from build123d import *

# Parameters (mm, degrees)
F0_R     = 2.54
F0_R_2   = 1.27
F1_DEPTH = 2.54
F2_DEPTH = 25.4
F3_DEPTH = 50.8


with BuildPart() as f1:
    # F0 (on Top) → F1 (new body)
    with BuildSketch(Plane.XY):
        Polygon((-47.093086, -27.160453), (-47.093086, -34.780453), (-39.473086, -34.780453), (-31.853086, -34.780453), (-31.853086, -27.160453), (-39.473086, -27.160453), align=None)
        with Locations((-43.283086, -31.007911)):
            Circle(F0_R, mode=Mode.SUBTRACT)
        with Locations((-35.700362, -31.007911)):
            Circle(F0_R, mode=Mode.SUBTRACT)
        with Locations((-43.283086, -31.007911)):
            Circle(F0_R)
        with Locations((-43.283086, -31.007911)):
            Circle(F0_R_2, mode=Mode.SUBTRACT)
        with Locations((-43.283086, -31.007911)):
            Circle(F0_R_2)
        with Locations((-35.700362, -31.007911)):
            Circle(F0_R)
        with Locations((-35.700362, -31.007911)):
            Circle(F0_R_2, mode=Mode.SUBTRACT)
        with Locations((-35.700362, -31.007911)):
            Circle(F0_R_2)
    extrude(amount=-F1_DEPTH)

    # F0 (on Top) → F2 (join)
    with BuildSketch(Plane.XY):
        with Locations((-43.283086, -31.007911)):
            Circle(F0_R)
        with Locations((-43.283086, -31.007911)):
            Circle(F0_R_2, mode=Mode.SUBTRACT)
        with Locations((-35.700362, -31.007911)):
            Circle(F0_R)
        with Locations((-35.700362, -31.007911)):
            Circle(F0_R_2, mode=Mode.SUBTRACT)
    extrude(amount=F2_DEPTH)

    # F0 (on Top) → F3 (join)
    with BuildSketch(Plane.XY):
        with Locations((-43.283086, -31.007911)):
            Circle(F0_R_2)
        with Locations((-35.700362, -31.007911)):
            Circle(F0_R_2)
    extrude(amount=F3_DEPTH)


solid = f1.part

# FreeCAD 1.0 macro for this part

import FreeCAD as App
import Part
import Sketcher
Q = App.Units.Quantity


def add_polygon(sketch, points):
    """Adds a closed chain of lines whose ends are joined by coincident constraints."""
    first, n = sketch.GeometryCount, len(points)
    for a, b in zip(points, points[1:] + points[:1]):
        sketch.addGeometry(Part.LineSegment(App.Vector(*a, 0), App.Vector(*b, 0)), False)
    for i in range(n):
        sketch.addConstraint(Sketcher.Constraint("Coincident", first + i, 2, first + (i + 1) % n, 1))

doc = App.newDocument("Part")
body = doc.addObject("PartDesign::Body", "Body")

sketch1 = body.newObject("Sketcher::SketchObject", "Sketch")
sketch1.AttachmentSupport = (doc.getObject("XY_Plane"), [""])
sketch1.MapMode = "FlatFace"
add_polygon(sketch1, [(-47, -27), (-47, -35), (-32, -35), (-32, -27)])
sketch1.addConstraint(Sketcher.Constraint("Vertical", 0))
sketch1.addConstraint(Sketcher.Constraint("Horizontal", 1))
sketch1.addConstraint(Sketcher.Constraint("Vertical", 2))
sketch1.addConstraint(Sketcher.Constraint("Horizontal", 3))
sketch1.addConstraint(Sketcher.Constraint("DistanceX", 1, 1, 1, 2, Q("0.6 in")))
sketch1.addConstraint(Sketcher.Constraint("DistanceY", 0, 2, 0, 1, Q("0.3 in")))
sketch1.addConstraint(Sketcher.Constraint("DistanceX", 0, 2, -1, 1, 47.093086))
sketch1.addConstraint(Sketcher.Constraint("DistanceY", 0, 2, -1, 1, 34.780453))
pad1 = body.newObject("PartDesign::Pad", "Pad")
pad1.Profile = sketch1
pad1.Length = Q("0.1 in")
pad1.Reversed = True

sketch2 = body.newObject("Sketcher::SketchObject", "Sketch001")
sketch2.AttachmentSupport = (doc.getObject("XY_Plane"), [""])
sketch2.MapMode = "FlatFace"
sketch2.addGeometry(Part.Circle(App.Vector(-43.3, -31, 0), App.Vector(0, 0, 1), 2.5), False)
sketch2.addGeometry(Part.Circle(App.Vector(-43.3, -31, 0), App.Vector(0, 0, 1), 1.3), False)
sketch2.addGeometry(Part.Circle(App.Vector(-35.7, -31, 0), App.Vector(0, 0, 1), 2.5), False)
sketch2.addGeometry(Part.Circle(App.Vector(-35.7, -31, 0), App.Vector(0, 0, 1), 1.3), False)
sketch2.addConstraint(Sketcher.Constraint("Coincident", 1, 3, 0, 3))
sketch2.addConstraint(Sketcher.Constraint("Coincident", 3, 3, 2, 3))
sketch2.addConstraint(Sketcher.Constraint("Equal", 0, 2))
sketch2.addConstraint(Sketcher.Constraint("Equal", 1, 3))
sketch2.addConstraint(Sketcher.Constraint("Horizontal", 1, 3, 2, 3))
sketch2.addConstraint(Sketcher.Constraint("Diameter", 0, Q("0.2 in")))
sketch2.addConstraint(Sketcher.Constraint("Diameter", 1, Q("0.1 in")))
sketch2.addConstraint(Sketcher.Constraint("DistanceY", 0, 3, -1, 1, 31.007911))
sketch2.addConstraint(Sketcher.Constraint("DistanceX", 2, 3, -1, 1, 35.700362))
sketch2.addConstraint(Sketcher.Constraint("DistanceX", 0, 3, -1, 1, 43.283086))
pad2 = body.newObject("PartDesign::Pad", "Pad001")
pad2.Profile = sketch2
pad2.Length = Q("1 in")

sketch3 = body.newObject("Sketcher::SketchObject", "Sketch002")
sketch3.AttachmentSupport = (doc.getObject("XY_Plane"), [""])
sketch3.MapMode = "FlatFace"
sketch3.addGeometry(Part.Circle(App.Vector(-43.3, -31, 0), App.Vector(0, 0, 1), 1.3), False)
sketch3.addGeometry(Part.Circle(App.Vector(-35.7, -31, 0), App.Vector(0, 0, 1), 1.3), False)
sketch3.addConstraint(Sketcher.Constraint("Equal", 0, 1))
sketch3.addConstraint(Sketcher.Constraint("Horizontal", 0, 3, 1, 3))
sketch3.addConstraint(Sketcher.Constraint("Diameter", 0, Q("0.1 in")))
sketch3.addConstraint(Sketcher.Constraint("DistanceY", 0, 3, -1, 1, 31.007911))
sketch3.addConstraint(Sketcher.Constraint("DistanceX", 1, 3, -1, 1, 35.700362))
sketch3.addConstraint(Sketcher.Constraint("DistanceX", 0, 3, -1, 1, 43.283086))
pad3 = body.newObject("PartDesign::Pad", "Pad002")
pad3.Profile = sketch3
pad3.Length = Q("2 in")

doc.recompute()
